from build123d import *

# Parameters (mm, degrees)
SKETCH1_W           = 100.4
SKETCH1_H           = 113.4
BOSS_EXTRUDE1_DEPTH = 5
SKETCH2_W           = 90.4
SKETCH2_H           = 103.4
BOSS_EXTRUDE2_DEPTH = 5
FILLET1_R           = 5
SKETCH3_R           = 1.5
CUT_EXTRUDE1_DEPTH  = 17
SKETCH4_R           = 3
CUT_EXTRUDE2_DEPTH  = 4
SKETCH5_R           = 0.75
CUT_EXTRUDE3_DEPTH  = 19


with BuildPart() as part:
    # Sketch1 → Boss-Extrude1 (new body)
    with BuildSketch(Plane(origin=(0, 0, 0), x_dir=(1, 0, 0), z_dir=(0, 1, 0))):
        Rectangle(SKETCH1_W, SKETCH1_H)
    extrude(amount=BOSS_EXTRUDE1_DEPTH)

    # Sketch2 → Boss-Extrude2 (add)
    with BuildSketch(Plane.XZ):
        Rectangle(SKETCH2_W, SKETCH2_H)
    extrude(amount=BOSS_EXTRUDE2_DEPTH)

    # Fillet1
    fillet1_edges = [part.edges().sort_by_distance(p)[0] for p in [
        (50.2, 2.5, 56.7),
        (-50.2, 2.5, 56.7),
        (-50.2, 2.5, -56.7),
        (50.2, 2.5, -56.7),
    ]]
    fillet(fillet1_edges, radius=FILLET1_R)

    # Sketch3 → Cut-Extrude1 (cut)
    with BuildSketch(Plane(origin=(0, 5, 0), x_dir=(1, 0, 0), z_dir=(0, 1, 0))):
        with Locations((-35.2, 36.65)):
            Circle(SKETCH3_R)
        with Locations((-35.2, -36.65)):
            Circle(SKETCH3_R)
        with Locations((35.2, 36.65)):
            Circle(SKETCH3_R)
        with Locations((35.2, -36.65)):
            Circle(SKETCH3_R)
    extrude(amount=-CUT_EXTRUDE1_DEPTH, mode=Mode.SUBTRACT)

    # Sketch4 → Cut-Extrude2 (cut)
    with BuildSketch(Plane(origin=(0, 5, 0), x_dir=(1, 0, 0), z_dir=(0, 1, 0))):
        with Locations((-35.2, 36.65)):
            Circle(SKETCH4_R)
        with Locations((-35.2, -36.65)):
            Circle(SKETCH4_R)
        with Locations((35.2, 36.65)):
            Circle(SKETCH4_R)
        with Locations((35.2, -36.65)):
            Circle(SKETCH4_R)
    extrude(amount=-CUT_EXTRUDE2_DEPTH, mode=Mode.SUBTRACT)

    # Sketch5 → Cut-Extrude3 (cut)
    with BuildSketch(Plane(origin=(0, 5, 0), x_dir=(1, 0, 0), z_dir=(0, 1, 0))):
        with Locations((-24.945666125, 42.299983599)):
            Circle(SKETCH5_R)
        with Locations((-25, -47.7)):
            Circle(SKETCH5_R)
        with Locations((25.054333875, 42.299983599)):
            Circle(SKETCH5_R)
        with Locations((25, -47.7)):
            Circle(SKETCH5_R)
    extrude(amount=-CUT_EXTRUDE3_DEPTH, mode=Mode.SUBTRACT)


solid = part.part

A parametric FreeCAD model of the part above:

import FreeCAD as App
import Part
import Sketcher

V = App.Vector
Q = App.Units.Quantity


def edges_at(feature, points):
    """Names of the edges that pass closest to the given points."""
    edges = feature.Shape.Edges
    near = lambda p: min(range(len(edges)), key=lambda i: edges[i].distToShape(Part.Vertex(*p))[0])
    return sorted({f"Edge{near(p) + 1}" for p in points})


def add_polygon(sketch, points):
    """Adds a closed chain of lines whose ends are joined by coincident constraints."""
    first, n = sketch.GeometryCount, len(points)
    for a, b in zip(points, points[1:] + points[:1]):
        sketch.addGeometry(Part.LineSegment(App.Vector(*a, 0), App.Vector(*b, 0)), False)
    for i in range(n):
        sketch.addConstraint(Sketcher.Constraint("Coincident", first + i, 2, first + (i + 1) % n, 1))

doc = App.newDocument("Part")
body = doc.addObject("PartDesign::Body", "Body")

# Sketch on XZ plane
sketch1 = body.newObject("Sketcher::SketchObject", "Sketch")
sketch1.AttachmentSupport = (doc.getObject("XZ_Plane"), [""])
sketch1.MapMode = "FlatFace"
add_polygon(sketch1, [(-50, -57), (-50, 57), (50, 57), (50, -57)])  # lines 0-3
sketch1.addConstraint(Sketcher.Constraint("Vertical", 0))
sketch1.addConstraint(Sketcher.Constraint("Horizontal", 1))
sketch1.addConstraint(Sketcher.Constraint("Vertical", 2))
sketch1.addConstraint(Sketcher.Constraint("Horizontal", 3))
sketch1.addConstraint(Sketcher.Constraint("Symmetric", 0, 2, 2, 2, -1, 1))
sketch1.addConstraint(Sketcher.Constraint("DistanceX", 1, 1, 1, 2, Q("100.4 mm")))
sketch1.addConstraint(Sketcher.Constraint("DistanceY", 0, 1, 0, 2, Q("113.4 mm")))
pad1 = body.newObject("PartDesign::Pad", "Pad")
pad1.Profile = sketch1
pad1.Length = 5
pad1.Reversed = True

# Sketch on XZ plane
sketch2 = body.newObject("Sketcher::SketchObject", "Sketch001")
sketch2.AttachmentSupport = (doc.getObject("XZ_Plane"), [""])
sketch2.MapMode = "FlatFace"
add_polygon(sketch2, [(-45, 52), (-45, -52), (45, -52), (45, 52)])  # lines 0-3
sketch2.addConstraint(Sketcher.Constraint("Vertical", 0))
sketch2.addConstraint(Sketcher.Constraint("Horizontal", 1))
sketch2.addConstraint(Sketcher.Constraint("Vertical", 2))
sketch2.addConstraint(Sketcher.Constraint("Horizontal", 3))
sketch2.addConstraint(Sketcher.Constraint("Symmetric", 0, 2, 2, 2, -1, 1))
sketch2.addConstraint(Sketcher.Constraint("DistanceX", 1, 1, 1, 2, Q("90.4 mm")))
sketch2.addConstraint(Sketcher.Constraint("DistanceY", 0, 2, 0, 1, Q("103.4 mm")))
pad2 = body.newObject("PartDesign::Pad", "Pad001")
pad2.Profile = sketch2
pad2.Length = 5
doc.recompute()

fillet = body.newObject("PartDesign::Fillet", "Fillet")
fillet.Base = (pad2, edges_at(pad2, [
    (50.2, 2.5, 56.7),
    (-50.2, 2.5, 56.7),
    (-50.2, 2.5, -56.7),
    (50.2, 2.5, -56.7),
]))
fillet.Radius = 5

# Sketch on XZ plane
sketch3 = body.newObject("Sketcher::SketchObject", "Sketch002")
sketch3.AttachmentSupport = (doc.getObject("XZ_Plane"), [""])
sketch3.MapMode = "FlatFace"
sketch3.AttachmentOffset = App.Placement(V(0, 0, -5), App.Rotation())
sketch3.addGeometry(Part.Circle(V(-35.2, -36.6, 0), V(0, 0, 1), 1.5), False)
sketch3.addGeometry(Part.Circle(V(-35.2, 36.6, 0), V(0, 0, 1), 1.5), False)
sketch3.addGeometry(Part.Circle(V(35.2, -36.6, 0), V(0, 0, 1), 1.5), False)
sketch3.addGeometry(Part.Circle(V(35.2, 36.6, 0), V(0, 0, 1), 1.5), False)
sketch3.addConstraint(Sketcher.Constraint("Equal", 0, 1))
sketch3.addConstraint(Sketcher.Constraint("Equal", 1, 2))
sketch3.addConstraint(Sketcher.Constraint("Equal", 2, 3))
sketch3.addConstraint(Sketcher.Constraint("Symmetric", 1, 3, 2, 3, -1, 1))
sketch3.addConstraint(Sketcher.Constraint("Symmetric", 0, 3, 3, 3, -1, 1))
sketch3.addConstraint(Sketcher.Constraint("Symmetric", 0, 3, 2, 3, -2))
sketch3.addConstraint(Sketcher.Constraint("Diameter", 0, Q("3 mm")))
sketch3.addConstraint(Sketcher.Constraint("DistanceX", 0, 3, -1, 1, Q("35.2 mm")))
sketch3.addConstraint(Sketcher.Constraint("DistanceY", 0, 3, 1, 3, Q("73.3 mm")))
pocket1 = body.newObject("PartDesign::Pocket", "Pocket")
pocket1.Profile = sketch3
pocket1.Length = 17
pocket1.Reversed = True

# Sketch on XZ plane
sketch4 = body.newObject("Sketcher::SketchObject", "Sketch003")
sketch4.AttachmentSupport = (doc.getObject("XZ_Plane"), [""])
sketch4.MapMode = "FlatFace"
sketch4.AttachmentOffset = App.Placement(V(0, 0, -5), App.Rotation())
sketch4.addGeometry(Part.Circle(V(-35.2, -36.6, 0), V(0, 0, 1), 3), False)
sketch4.addGeometry(Part.Circle(V(-35.2, 36.6, 0), V(0, 0, 1), 3), False)
sketch4.addGeometry(Part.Circle(V(35.2, -36.6, 0), V(0, 0, 1), 3), False)
sketch4.addGeometry(Part.Circle(V(35.2, 36.6, 0), V(0, 0, 1), 3), False)
sketch4.addConstraint(Sketcher.Constraint("Equal", 0, 1))
sketch4.addConstraint(Sketcher.Constraint("Equal", 1, 2))
sketch4.addConstraint(Sketcher.Constraint("Equal", 2, 3))
sketch4.addConstraint(Sketcher.Constraint("Symmetric", 1, 3, 2, 3, -1, 1))
sketch4.addConstraint(Sketcher.Constraint("Symmetric", 0, 3, 3, 3, -1, 1))
sketch4.addConstraint(Sketcher.Constraint("Symmetric", 0, 3, 2, 3, -2))
sketch4.addConstraint(Sketcher.Constraint("Diameter", 0, Q("6 mm")))
sketch4.addConstraint(Sketcher.Constraint("DistanceX", 0, 3, -1, 1, Q("35.2 mm")))
sketch4.addConstraint(Sketcher.Constraint("DistanceY", 0, 3, 1, 3, Q("73.3 mm")))
pocket2 = body.newObject("PartDesign::Pocket", "Pocket001")
pocket2.Profile = sketch4
pocket2.Length = 4
pocket2.Reversed = True

# Sketch on XZ plane
sketch5 = body.newObject("Sketcher::SketchObject", "Sketch004")
sketch5.AttachmentSupport = (doc.getObject("XZ_Plane"), [""])
sketch5.MapMode = "FlatFace"
sketch5.AttachmentOffset = App.Placement(V(0, 0, -5), App.Rotation())
sketch5.addGeometry(Part.Circle(V(-24.9, -42.3, 0), V(0, 0, 1), 0.8), False)
sketch5.addGeometry(Part.Circle(V(-25, 47.7, 0), V(0, 0, 1), 0.8), False)
sketch5.addGeometry(Part.Circle(V(25.1, -42.3, 0), V(0, 0, 1), 0.8), False)
sketch5.addGeometry(Part.Circle(V(25, 47.7, 0), V(0, 0, 1), 0.8), False)
sketch5.addConstraint(Sketcher.Constraint("Equal", 0, 1))
sketch5.addConstraint(Sketcher.Constraint("Equal", 1, 2))
sketch5.addConstraint(Sketcher.Constraint("Equal", 2, 3))
sketch5.addConstraint(Sketcher.Constraint("Symmetric", 1, 3, 3, 3, -2))
sketch5.addConstraint(Sketcher.Constraint("Horizontal", 0, 3, 2, 3))
sketch5.addConstraint(Sketcher.Constraint("Diameter", 0, Q("1.5 mm")))
sketch5.addConstraint(Sketcher.Constraint("DistanceX", 1, 3, -1, 1, Q("25 mm")))
sketch5.addConstraint(Sketcher.Constraint("DistanceX", 0, 3, 2, 3, Q("50 mm")))
sketch5.addConstraint(Sketcher.Constraint("DistanceY", -1, 1, 1, 3, Q("47.7 mm")))
sketch5.addConstraint(Sketcher.Constraint("DistanceX", 0, 3, -1, 1, Q("24.945666 mm")))
sketch5.addConstraint(Sketcher.Constraint("DistanceY", 0, 3, -1, 1, Q("42.299984 mm")))
pocket3 = body.newObject("PartDesign::Pocket", "Pocket002")
pocket3.Profile = sketch5
pocket3.Length = 19
pocket3.Reversed = True

doc.recompute()
